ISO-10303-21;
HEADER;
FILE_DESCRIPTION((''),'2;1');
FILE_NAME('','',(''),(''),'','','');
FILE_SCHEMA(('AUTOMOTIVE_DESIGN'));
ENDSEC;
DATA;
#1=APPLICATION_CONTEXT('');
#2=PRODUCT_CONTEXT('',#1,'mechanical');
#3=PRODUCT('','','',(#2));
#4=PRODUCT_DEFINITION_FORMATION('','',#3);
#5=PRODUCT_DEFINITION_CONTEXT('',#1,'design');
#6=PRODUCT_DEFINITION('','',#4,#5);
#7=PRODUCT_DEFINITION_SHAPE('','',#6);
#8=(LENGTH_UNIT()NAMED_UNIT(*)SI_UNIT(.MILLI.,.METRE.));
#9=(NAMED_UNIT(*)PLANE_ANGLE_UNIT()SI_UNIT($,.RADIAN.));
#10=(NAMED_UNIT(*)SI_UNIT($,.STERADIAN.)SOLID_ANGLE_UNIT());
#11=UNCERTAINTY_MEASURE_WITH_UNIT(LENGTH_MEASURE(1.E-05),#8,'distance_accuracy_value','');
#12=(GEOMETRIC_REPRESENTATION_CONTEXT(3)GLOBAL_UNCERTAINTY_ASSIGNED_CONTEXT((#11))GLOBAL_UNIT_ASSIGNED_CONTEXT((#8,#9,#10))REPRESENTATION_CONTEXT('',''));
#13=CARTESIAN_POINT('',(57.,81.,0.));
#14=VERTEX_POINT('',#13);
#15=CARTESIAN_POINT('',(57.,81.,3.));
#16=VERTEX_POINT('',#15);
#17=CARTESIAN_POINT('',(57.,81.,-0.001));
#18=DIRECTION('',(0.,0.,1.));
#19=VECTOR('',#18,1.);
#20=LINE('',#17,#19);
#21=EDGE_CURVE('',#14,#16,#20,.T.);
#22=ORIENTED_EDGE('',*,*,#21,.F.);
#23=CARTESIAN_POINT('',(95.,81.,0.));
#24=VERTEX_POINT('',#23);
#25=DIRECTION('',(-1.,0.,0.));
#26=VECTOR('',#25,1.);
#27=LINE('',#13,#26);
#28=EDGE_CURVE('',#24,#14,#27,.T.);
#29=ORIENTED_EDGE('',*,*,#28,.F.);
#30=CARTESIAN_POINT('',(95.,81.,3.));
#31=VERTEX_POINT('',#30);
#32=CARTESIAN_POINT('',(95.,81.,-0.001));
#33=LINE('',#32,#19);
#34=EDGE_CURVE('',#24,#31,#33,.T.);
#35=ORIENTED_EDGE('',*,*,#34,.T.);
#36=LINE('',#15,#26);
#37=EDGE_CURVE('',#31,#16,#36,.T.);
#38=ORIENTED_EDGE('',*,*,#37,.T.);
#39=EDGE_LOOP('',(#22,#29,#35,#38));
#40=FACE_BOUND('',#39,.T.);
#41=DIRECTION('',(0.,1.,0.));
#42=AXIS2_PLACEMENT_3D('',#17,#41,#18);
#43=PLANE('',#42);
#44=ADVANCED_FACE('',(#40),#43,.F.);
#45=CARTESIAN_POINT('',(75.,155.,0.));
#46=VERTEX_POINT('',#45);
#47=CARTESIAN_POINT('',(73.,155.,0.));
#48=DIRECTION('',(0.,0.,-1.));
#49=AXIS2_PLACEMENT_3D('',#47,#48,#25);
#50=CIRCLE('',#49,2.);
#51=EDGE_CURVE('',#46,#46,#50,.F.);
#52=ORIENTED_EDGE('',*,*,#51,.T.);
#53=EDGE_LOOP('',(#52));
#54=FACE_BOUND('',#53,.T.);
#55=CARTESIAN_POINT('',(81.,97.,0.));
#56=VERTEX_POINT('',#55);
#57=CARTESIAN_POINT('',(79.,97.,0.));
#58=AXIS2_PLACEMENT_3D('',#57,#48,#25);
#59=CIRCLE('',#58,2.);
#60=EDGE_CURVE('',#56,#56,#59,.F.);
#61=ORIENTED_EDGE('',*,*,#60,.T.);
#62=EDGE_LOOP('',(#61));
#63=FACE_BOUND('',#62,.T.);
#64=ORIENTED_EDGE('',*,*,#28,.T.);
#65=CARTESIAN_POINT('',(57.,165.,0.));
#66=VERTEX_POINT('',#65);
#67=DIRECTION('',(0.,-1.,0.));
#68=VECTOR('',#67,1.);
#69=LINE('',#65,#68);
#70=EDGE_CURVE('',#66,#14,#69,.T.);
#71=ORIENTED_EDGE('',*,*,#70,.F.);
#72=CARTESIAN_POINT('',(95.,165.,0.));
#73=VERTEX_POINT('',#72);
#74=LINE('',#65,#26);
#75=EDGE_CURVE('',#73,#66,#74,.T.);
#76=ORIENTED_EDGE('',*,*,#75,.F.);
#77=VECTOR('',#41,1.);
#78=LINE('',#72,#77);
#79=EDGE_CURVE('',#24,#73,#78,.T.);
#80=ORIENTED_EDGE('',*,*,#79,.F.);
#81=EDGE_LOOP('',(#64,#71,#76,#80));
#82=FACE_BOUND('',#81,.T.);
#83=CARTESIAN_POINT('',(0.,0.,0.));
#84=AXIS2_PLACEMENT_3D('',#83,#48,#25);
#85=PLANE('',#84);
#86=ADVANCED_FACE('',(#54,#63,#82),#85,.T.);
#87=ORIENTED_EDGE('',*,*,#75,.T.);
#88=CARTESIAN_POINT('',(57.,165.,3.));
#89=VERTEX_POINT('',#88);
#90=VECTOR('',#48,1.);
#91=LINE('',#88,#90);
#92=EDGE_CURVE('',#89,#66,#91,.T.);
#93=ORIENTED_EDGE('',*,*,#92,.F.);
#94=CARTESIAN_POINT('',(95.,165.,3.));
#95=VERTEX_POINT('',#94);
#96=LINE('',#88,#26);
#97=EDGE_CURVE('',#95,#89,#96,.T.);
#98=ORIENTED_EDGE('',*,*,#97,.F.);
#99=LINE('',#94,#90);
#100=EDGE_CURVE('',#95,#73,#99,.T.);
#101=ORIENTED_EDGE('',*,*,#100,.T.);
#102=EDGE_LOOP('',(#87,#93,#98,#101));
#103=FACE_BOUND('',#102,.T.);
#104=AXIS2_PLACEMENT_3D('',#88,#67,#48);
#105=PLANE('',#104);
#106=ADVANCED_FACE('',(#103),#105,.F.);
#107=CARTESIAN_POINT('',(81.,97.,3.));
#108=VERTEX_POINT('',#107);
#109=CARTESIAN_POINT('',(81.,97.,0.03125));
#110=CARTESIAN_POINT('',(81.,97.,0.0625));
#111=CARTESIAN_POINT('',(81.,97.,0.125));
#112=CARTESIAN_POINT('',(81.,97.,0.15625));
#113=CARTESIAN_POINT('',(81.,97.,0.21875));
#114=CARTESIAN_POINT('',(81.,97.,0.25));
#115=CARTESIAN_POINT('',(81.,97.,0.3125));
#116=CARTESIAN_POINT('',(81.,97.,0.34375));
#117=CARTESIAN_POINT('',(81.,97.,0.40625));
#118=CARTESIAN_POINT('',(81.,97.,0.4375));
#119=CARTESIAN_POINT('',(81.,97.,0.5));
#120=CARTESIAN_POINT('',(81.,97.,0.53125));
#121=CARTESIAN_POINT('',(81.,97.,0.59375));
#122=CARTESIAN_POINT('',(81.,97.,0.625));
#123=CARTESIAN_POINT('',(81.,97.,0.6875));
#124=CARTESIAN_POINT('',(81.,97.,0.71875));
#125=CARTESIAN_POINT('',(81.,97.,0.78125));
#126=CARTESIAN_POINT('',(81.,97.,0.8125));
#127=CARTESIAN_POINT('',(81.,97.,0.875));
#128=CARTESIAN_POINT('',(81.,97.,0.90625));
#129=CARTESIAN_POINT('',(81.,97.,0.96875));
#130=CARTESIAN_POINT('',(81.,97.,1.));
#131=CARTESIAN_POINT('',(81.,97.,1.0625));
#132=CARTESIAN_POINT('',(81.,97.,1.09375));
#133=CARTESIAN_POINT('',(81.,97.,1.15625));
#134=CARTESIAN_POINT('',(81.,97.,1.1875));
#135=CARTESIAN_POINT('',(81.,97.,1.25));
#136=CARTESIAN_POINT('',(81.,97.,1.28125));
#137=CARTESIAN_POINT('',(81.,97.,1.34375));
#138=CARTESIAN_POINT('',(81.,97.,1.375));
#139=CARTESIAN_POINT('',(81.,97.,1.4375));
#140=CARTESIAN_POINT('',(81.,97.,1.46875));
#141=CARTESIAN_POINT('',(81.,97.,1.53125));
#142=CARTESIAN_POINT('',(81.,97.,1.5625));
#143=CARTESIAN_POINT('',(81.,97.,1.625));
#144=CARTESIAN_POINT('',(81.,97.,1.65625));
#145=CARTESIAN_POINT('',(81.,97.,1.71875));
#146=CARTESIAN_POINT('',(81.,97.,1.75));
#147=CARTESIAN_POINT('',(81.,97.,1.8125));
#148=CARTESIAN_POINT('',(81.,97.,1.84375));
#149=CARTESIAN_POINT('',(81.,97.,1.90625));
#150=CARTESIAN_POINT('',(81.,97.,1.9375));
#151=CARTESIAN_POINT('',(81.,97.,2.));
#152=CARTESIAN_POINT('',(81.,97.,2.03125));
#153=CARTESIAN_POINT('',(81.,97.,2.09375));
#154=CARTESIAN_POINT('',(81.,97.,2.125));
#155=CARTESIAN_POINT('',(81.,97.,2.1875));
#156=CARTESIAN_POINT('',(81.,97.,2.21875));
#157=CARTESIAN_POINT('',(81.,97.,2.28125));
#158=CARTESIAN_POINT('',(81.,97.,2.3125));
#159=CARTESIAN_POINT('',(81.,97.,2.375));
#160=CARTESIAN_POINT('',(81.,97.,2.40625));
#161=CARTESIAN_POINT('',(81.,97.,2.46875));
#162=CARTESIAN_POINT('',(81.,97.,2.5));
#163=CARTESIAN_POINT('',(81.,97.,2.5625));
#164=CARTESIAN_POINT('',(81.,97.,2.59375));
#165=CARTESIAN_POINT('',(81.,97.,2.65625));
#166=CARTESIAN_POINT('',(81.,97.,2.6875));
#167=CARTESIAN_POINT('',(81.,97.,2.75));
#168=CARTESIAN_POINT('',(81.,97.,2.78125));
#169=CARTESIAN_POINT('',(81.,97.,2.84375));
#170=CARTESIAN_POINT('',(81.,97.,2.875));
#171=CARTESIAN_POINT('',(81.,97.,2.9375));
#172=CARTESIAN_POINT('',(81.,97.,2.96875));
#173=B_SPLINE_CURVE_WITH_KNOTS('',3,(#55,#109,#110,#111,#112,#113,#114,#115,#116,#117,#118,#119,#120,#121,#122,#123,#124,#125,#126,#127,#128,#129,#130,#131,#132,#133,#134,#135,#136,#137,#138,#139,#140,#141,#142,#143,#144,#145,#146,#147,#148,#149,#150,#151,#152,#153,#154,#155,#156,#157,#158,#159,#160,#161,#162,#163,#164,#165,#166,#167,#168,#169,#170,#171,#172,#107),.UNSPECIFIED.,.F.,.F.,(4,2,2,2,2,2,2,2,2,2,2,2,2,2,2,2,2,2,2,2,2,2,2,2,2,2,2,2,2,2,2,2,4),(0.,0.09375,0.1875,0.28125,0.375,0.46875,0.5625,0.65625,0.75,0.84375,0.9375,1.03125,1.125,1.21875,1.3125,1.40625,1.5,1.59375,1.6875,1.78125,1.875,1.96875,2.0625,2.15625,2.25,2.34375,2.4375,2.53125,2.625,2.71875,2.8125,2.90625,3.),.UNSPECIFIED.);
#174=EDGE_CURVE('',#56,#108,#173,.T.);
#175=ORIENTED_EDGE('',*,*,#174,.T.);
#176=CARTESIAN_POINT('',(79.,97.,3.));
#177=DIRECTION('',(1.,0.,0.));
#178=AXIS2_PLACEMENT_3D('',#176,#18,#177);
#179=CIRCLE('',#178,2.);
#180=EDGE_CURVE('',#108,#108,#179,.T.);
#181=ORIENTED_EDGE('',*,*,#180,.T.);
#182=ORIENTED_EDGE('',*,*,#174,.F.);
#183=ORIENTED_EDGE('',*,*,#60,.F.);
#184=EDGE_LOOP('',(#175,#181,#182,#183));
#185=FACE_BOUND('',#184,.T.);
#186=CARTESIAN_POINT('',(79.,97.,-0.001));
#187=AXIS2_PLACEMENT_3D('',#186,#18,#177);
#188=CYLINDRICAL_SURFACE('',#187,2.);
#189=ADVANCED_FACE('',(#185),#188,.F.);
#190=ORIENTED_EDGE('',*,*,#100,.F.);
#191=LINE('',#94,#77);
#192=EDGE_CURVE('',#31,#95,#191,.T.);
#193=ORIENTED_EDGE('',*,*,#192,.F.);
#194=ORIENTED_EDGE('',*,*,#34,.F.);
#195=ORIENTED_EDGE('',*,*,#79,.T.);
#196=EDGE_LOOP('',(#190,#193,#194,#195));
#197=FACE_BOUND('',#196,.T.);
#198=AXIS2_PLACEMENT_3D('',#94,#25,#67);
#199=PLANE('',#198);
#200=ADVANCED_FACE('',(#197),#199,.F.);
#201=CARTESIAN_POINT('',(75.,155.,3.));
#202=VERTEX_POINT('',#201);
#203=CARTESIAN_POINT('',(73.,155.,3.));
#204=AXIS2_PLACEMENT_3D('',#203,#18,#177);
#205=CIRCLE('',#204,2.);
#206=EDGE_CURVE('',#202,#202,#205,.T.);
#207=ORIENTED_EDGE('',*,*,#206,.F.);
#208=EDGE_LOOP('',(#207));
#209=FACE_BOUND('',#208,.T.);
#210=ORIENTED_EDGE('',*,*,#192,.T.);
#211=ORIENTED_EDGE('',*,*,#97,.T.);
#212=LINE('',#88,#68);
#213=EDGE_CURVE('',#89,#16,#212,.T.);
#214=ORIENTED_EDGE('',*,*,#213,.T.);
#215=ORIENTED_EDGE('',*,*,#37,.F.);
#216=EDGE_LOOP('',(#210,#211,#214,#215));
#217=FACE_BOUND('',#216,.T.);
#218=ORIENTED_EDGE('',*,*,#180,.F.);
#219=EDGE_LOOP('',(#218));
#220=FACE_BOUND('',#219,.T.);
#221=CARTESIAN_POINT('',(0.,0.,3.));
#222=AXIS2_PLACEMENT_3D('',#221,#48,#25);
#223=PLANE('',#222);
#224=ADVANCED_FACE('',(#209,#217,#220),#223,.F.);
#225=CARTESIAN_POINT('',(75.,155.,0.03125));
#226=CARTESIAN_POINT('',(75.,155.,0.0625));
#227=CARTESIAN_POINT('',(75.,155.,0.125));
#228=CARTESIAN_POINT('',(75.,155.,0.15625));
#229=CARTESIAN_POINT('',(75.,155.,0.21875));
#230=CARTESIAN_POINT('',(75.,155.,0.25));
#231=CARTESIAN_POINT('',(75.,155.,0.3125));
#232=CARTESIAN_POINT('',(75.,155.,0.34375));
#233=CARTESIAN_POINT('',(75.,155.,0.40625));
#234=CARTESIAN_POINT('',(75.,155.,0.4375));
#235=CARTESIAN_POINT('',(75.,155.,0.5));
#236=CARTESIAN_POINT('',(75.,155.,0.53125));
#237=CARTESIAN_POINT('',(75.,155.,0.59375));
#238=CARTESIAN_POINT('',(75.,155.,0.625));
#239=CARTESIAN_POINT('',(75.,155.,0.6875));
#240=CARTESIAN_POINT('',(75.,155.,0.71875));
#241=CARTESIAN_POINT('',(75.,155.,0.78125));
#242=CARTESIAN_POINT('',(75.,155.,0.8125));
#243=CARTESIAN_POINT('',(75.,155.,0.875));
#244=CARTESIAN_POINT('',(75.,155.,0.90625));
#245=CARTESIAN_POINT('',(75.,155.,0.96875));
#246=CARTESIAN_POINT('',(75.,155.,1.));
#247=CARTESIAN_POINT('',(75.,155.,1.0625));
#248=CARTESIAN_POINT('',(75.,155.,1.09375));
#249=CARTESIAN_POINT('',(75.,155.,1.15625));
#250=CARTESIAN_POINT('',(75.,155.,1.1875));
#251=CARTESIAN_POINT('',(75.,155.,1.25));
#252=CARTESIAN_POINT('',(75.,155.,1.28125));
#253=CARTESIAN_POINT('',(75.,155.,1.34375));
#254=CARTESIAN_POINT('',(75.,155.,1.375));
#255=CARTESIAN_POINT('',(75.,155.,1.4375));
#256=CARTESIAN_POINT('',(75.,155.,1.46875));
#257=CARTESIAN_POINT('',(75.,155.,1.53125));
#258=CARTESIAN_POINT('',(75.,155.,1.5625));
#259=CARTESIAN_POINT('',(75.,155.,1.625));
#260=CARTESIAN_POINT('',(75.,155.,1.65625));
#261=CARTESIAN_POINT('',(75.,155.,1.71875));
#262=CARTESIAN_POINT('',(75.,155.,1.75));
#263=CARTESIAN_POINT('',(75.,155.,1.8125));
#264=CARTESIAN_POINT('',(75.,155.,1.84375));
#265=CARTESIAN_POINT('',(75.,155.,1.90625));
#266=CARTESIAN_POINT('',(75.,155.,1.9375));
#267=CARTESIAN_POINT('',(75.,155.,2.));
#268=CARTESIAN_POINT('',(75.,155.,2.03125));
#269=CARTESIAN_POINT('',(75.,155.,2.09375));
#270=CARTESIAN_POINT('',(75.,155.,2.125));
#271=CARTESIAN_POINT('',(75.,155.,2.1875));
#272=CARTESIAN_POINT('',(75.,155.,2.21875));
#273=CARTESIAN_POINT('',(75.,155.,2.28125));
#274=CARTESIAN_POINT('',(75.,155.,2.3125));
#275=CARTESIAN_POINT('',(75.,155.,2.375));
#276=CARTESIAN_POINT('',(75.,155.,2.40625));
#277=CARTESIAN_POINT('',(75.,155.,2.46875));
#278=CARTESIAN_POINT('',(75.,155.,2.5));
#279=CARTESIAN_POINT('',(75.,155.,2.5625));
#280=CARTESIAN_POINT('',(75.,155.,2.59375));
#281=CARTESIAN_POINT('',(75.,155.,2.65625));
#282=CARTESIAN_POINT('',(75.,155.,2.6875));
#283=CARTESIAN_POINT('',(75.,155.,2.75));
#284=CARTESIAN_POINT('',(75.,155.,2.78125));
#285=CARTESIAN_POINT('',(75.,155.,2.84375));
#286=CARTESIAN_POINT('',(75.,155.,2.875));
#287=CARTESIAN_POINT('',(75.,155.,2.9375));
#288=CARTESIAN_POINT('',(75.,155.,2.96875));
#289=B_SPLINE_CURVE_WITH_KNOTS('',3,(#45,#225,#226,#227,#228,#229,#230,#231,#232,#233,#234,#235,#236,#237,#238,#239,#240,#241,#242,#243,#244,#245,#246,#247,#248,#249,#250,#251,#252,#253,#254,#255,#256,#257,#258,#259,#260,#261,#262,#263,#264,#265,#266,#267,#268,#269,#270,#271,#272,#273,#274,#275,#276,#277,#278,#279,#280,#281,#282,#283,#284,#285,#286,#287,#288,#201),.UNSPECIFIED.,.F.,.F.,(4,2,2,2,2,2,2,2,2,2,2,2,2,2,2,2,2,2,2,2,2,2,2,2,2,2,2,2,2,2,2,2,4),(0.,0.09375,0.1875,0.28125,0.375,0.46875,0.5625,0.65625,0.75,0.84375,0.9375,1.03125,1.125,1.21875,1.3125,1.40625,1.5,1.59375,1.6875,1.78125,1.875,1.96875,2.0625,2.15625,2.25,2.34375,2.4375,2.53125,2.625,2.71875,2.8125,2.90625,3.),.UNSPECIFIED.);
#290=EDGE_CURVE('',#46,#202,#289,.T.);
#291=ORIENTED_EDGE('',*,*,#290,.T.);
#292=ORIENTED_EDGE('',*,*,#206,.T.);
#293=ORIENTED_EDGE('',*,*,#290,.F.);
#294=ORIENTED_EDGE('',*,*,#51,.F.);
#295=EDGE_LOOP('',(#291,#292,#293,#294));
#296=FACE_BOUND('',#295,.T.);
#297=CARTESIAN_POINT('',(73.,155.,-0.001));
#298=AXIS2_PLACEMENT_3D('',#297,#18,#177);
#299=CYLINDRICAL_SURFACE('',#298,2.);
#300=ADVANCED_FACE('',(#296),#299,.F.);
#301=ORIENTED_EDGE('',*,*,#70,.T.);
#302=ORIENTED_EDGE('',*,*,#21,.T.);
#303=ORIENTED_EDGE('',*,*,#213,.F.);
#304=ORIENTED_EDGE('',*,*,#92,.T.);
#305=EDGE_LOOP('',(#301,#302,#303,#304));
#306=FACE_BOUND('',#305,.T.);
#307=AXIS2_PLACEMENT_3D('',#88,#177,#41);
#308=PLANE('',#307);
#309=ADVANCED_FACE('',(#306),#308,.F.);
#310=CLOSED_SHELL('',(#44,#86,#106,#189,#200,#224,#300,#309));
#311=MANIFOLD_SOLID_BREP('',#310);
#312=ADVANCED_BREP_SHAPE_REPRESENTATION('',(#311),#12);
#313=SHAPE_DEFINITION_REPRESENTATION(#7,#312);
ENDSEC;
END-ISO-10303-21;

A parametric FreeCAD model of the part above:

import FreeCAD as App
import Part
import Sketcher
from FreeCAD import Vector


def add_polygon(sketch, points):
    """Adds a closed chain of lines whose ends are joined by coincident constraints."""
    first, n = sketch.GeometryCount, len(points)
    for a, b in zip(points, points[1:] + points[:1]):
        sketch.addGeometry(Part.LineSegment(App.Vector(*a, 0), App.Vector(*b, 0)), False)
    for i in range(n):
        sketch.addConstraint(Sketcher.Constraint("Coincident", first + i, 2, first + (i + 1) % n, 1))

doc = App.newDocument("Part")
body = doc.addObject("PartDesign::Body", "Body")

# Sketch on XY plane
sketch1 = body.newObject("Sketcher::SketchObject", "Sketch")
sketch1.AttachmentSupport = (doc.getObject("XY_Plane"), [""])
sketch1.MapMode = "FlatFace"
add_polygon(sketch1, [(57, 165), (57, -155), (95, -155), (95, 165)])  # lines 0-3
sketch1.addConstraint([
    Sketcher.Constraint("Vertical", 0),
    Sketcher.Constraint("Horizontal", 1),
    Sketcher.Constraint("Vertical", 2),
    Sketcher.Constraint("Horizontal", 3),
    Sketcher.Constraint("DistanceX", 1, 1, 1, 2, 38.0),
    Sketcher.Constraint("DistanceY", 0, 2, 0, 1, 320.0),
    Sketcher.Constraint("DistanceX", -1, 1, 0, 2, 57.0),
    Sketcher.Constraint("DistanceY", 0, 2, -1, 1, 155.0),
])
pad1 = body.newObject("PartDesign::Pad", "Pad")
pad1.Profile = sketch1
pad1.Length = 3

# Sketch on XY plane
sketch2 = body.newObject("Sketcher::SketchObject", "Sketch001")
sketch2.AttachmentSupport = (doc.getObject("XY_Plane"), [""])
sketch2.MapMode = "FlatFace"
sketch2.AttachmentOffset = App.Placement(Vector(0, 0, 3), App.Rotation())
sketch2.addGeometry(Part.Circle(Vector(73, 155, 0), Vector(0, 0, 1), 2), False)
sketch2.addConstraint([
    Sketcher.Constraint("Diameter", 0, 4.0),
    Sketcher.Constraint("DistanceX", -1, 1, 0, 3, 73.0),
    Sketcher.Constraint("DistanceY", -1, 1, 0, 3, 155.0),
])
pocket1 = body.newObject("PartDesign::Pocket", "Pocket")
pocket1.Profile = sketch2
pocket1.Type = "UpToFirst"

# Sketch on XY plane
sketch3 = body.newObject("Sketcher::SketchObject", "Sketch002")
sketch3.AttachmentSupport = (doc.getObject("XY_Plane"), [""])
sketch3.MapMode = "FlatFace"
sketch3.AttachmentOffset = App.Placement(Vector(0, 0, 3), App.Rotation())
sketch3.addGeometry(Part.Circle(Vector(79, 97, 0), Vector(0, 0, 1), 2), False)
sketch3.addConstraint([
    Sketcher.Constraint("Diameter", 0, 4.0),
    Sketcher.Constraint("DistanceX", -1, 1, 0, 3, 79.0),
    Sketcher.Constraint("DistanceY", -1, 1, 0, 3, 97.0),
])
pocket2 = body.newObject("PartDesign::Pocket", "Pocket001")
pocket2.Profile = sketch3
pocket2.Type = "UpToFirst"

# Sketch on XY plane
sketch4 = body.newObject("Sketcher::SketchObject", "Sketch003")
sketch4.AttachmentSupport = (doc.getObject("XY_Plane"), [""])
sketch4.MapMode = "FlatFace"
sketch4.AttachmentOffset = App.Placement(Vector(0, 0, 3), App.Rotation())
add_polygon(sketch4, [(57, 81), (57, -155), (95, -155), (95, 81)])  # lines 0-3
sketch4.addConstraint([
    Sketcher.Constraint("Vertical", 0),
    Sketcher.Constraint("Horizontal", 1),
    Sketcher.Constraint("Vertical", 2),
    Sketcher.Constraint("Horizontal", 3),
    Sketcher.Constraint("DistanceX", 1, 1, 1, 2, 38.0),
    Sketcher.Constraint("DistanceY", 0, 2, 0, 1, 236.0),
    Sketcher.Constraint("DistanceX", -1, 1, 0, 2, 57.0),
    Sketcher.Constraint("DistanceY", 0, 2, -1, 1, 155.0),
])
pocket3 = body.newObject("PartDesign::Pocket", "Pocket002")
pocket3.Profile = sketch4
pocket3.Type = "UpToFirst"

doc.recompute()
